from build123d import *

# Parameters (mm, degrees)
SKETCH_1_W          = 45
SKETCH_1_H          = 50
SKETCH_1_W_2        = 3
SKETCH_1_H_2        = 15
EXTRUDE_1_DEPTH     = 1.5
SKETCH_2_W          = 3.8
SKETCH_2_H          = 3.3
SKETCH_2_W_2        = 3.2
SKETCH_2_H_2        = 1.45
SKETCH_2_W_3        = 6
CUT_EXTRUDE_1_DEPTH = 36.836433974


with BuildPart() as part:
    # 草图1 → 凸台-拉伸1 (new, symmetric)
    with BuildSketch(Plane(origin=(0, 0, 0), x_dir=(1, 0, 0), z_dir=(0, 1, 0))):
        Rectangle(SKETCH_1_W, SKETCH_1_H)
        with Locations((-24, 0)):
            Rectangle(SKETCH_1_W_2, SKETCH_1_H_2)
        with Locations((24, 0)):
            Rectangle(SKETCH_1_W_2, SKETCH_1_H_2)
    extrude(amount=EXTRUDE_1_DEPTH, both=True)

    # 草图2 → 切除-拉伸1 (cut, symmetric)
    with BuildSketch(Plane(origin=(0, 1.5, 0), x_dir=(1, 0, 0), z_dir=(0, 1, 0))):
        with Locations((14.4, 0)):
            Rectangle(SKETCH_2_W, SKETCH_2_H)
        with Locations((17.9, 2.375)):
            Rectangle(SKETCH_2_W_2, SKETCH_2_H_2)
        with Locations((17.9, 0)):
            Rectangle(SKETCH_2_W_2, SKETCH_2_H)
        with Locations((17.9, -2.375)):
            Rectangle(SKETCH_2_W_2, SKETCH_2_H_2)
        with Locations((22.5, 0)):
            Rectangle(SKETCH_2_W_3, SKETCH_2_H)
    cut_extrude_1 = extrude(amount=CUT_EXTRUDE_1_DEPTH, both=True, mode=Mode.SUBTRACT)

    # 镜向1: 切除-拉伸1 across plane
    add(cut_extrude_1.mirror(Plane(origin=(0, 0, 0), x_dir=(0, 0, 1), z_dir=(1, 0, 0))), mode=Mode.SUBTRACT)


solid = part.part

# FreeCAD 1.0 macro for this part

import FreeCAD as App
import Part
import Sketcher

V = App.Vector

doc = App.newDocument("Part")
body = doc.addObject("PartDesign::Body", "Body")

sketch1 = body.newObject("Sketcher::SketchObject", "Sketch")
sketch1.AttachmentSupport = (doc.getObject("XZ_Plane"), [""])
sketch1.MapMode = "FlatFace"
sketch1.addGeometry(Part.LineSegment(V(-22.5, 7.5, 0), V(-22.5, 25, 0)), False)
sketch1.addGeometry(Part.LineSegment(V(-22.5, 25, 0), V(22.5, 25, 0)), False)
sketch1.addGeometry(Part.LineSegment(V(22.5, 25, 0), V(22.5, 7.5, 0)), False)
sketch1.addGeometry(Part.LineSegment(V(22.5, 7.5, 0), V(25.5, 7.5, 0)), False)
sketch1.addGeometry(Part.LineSegment(V(25.5, 7.5, 0), V(25.5, -7.5, 0)), False)
sketch1.addGeometry(Part.LineSegment(V(25.5, -7.5, 0), V(22.5, -7.5, 0)), False)
sketch1.addGeometry(Part.LineSegment(V(22.5, -7.5, 0), V(22.5, -25, 0)), False)
sketch1.addGeometry(Part.LineSegment(V(22.5, -25, 0), V(-22.5, -25, 0)), False)
sketch1.addGeometry(Part.LineSegment(V(-22.5, -25, 0), V(-22.5, -7.5, 0)), False)
sketch1.addGeometry(Part.LineSegment(V(-22.5, -7.5, 0), V(-25.5, -7.5, 0)), False)
sketch1.addGeometry(Part.LineSegment(V(-25.5, -7.5, 0), V(-25.5, 7.5, 0)), False)
sketch1.addGeometry(Part.LineSegment(V(-25.5, 7.5, 0), V(-22.5, 7.5, 0)), False)
sketch1.addConstraint(Sketcher.Constraint("Coincident", 0, 2, 1, 1))
sketch1.addConstraint(Sketcher.Constraint("Coincident", 1, 2, 2, 1))
sketch1.addConstraint(Sketcher.Constraint("Coincident", 2, 2, 3, 1))
sketch1.addConstraint(Sketcher.Constraint("Coincident", 3, 2, 4, 1))
sketch1.addConstraint(Sketcher.Constraint("Coincident", 4, 2, 5, 1))
sketch1.addConstraint(Sketcher.Constraint("Coincident", 5, 2, 6, 1))
sketch1.addConstraint(Sketcher.Constraint("Coincident", 6, 2, 7, 1))
sketch1.addConstraint(Sketcher.Constraint("Coincident", 7, 2, 8, 1))
sketch1.addConstraint(Sketcher.Constraint("Coincident", 8, 2, 9, 1))
sketch1.addConstraint(Sketcher.Constraint("Coincident", 9, 2, 10, 1))
sketch1.addConstraint(Sketcher.Constraint("Coincident", 10, 2, 11, 1))
sketch1.addConstraint(Sketcher.Constraint("Coincident", 11, 2, 0, 1))
sketch1.addConstraint(Sketcher.Constraint("Vertical", 0))
sketch1.addConstraint(Sketcher.Constraint("Horizontal", 1))
sketch1.addConstraint(Sketcher.Constraint("Vertical", 2))
sketch1.addConstraint(Sketcher.Constraint("Horizontal", 3))
sketch1.addConstraint(Sketcher.Constraint("Vertical", 4))
sketch1.addConstraint(Sketcher.Constraint("Horizontal", 5))
sketch1.addConstraint(Sketcher.Constraint("Vertical", 6))
sketch1.addConstraint(Sketcher.Constraint("Horizontal", 7))
sketch1.addConstraint(Sketcher.Constraint("Vertical", 8))
sketch1.addConstraint(Sketcher.Constraint("Horizontal", 9))
sketch1.addConstraint(Sketcher.Constraint("Vertical", 10))
sketch1.addConstraint(Sketcher.Constraint("Horizontal", 11))
sketch1.addConstraint(Sketcher.Constraint("Symmetric", 0, 2, 6, 2, -1, 1))
sketch1.addConstraint(Sketcher.Constraint("Symmetric", 2, 2, 8, 2, -1, 1))
sketch1.addConstraint(Sketcher.Constraint("Symmetric", 4, 2, 10, 2, -1, 1))
sketch1.addConstraint(Sketcher.Constraint("Symmetric", 5, 2, 8, 2, -2))
sketch1.addConstraint(Sketcher.Constraint("DistanceX", 1, 1, 1, 2, 45.0))
sketch1.addConstraint(Sketcher.Constraint("DistanceX", 3, 1, 3, 2, 3.0))
sketch1.addConstraint(Sketcher.Constraint("DistanceY", 4, 2, 4, 1, 15.0))
sketch1.addConstraint(Sketcher.Constraint("DistanceY", 0, 1, 0, 2, 17.5))
pad1 = body.newObject("PartDesign::Pad", "Pad")
pad1.Profile = sketch1
pad1.Length = 3
pad1.Midplane = True

sketch2 = body.newObject("Sketcher::SketchObject", "Sketch001")
sketch2.AttachmentSupport = (doc.getObject("XZ_Plane"), [""])
sketch2.MapMode = "FlatFace"
sketch2.AttachmentOffset = App.Placement(V(0, 0, -1.5), App.Rotation())
sketch2.addGeometry(Part.LineSegment(V(12.5, -1.6, 0), V(12.5, 1.6, 0)), False)
sketch2.addGeometry(Part.LineSegment(V(12.5, 1.6, 0), V(16.3, 1.6, 0)), False)
sketch2.addGeometry(Part.LineSegment(V(16.3, 1.6, 0), V(16.3, 3.1, 0)), False)
sketch2.addGeometry(Part.LineSegment(V(16.3, 3.1, 0), V(19.5, 3.1, 0)), False)
sketch2.addGeometry(Part.LineSegment(V(19.5, 3.1, 0), V(19.5, 1.6, 0)), False)
sketch2.addGeometry(Part.LineSegment(V(19.5, 1.6, 0), V(25.5, 1.6, 0)), False)
sketch2.addGeometry(Part.LineSegment(V(25.5, 1.6, 0), V(25.5, -1.6, 0)), False)
sketch2.addGeometry(Part.LineSegment(V(25.5, -1.6, 0), V(19.5, -1.6, 0)), False)
sketch2.addGeometry(Part.LineSegment(V(19.5, -1.6, 0), V(19.5, -3.1, 0)), False)
sketch2.addGeometry(Part.LineSegment(V(19.5, -3.1, 0), V(16.3, -3.1, 0)), False)
sketch2.addGeometry(Part.LineSegment(V(16.3, -3.1, 0), V(16.3, -1.6, 0)), False)
sketch2.addGeometry(Part.LineSegment(V(16.3, -1.6, 0), V(12.5, -1.6, 0)), False)
sketch2.addConstraint(Sketcher.Constraint("Coincident", 0, 2, 1, 1))
sketch2.addConstraint(Sketcher.Constraint("Coincident", 1, 2, 2, 1))
sketch2.addConstraint(Sketcher.Constraint("Coincident", 2, 2, 3, 1))
sketch2.addConstraint(Sketcher.Constraint("Coincident", 3, 2, 4, 1))
sketch2.addConstraint(Sketcher.Constraint("Coincident", 4, 2, 5, 1))
sketch2.addConstraint(Sketcher.Constraint("Coincident", 5, 2, 6, 1))
sketch2.addConstraint(Sketcher.Constraint("Coincident", 6, 2, 7, 1))
sketch2.addConstraint(Sketcher.Constraint("Coincident", 7, 2, 8, 1))
sketch2.addConstraint(Sketcher.Constraint("Coincident", 8, 2, 9, 1))
sketch2.addConstraint(Sketcher.Constraint("Coincident", 9, 2, 10, 1))
sketch2.addConstraint(Sketcher.Constraint("Coincident", 10, 2, 11, 1))
sketch2.addConstraint(Sketcher.Constraint("Coincident", 11, 2, 0, 1))
sketch2.addConstraint(Sketcher.Constraint("Vertical", 0))
sketch2.addConstraint(Sketcher.Constraint("Horizontal", 1))
sketch2.addConstraint(Sketcher.Constraint("Vertical", 2))
sketch2.addConstraint(Sketcher.Constraint("Horizontal", 3))
sketch2.addConstraint(Sketcher.Constraint("Vertical", 4))
sketch2.addConstraint(Sketcher.Constraint("Horizontal", 5))
sketch2.addConstraint(Sketcher.Constraint("Vertical", 6))
sketch2.addConstraint(Sketcher.Constraint("Horizontal", 7))
sketch2.addConstraint(Sketcher.Constraint("Vertical", 8))
sketch2.addConstraint(Sketcher.Constraint("Horizontal", 9))
sketch2.addConstraint(Sketcher.Constraint("Vertical", 10))
sketch2.addConstraint(Sketcher.Constraint("Horizontal", 11))
sketch2.addConstraint(Sketcher.Constraint("Symmetric", 4, 2, 7, 2, -1))
sketch2.addConstraint(Sketcher.Constraint("Symmetric", 2, 2, 9, 2, -1))
sketch2.addConstraint(Sketcher.Constraint("Horizontal", 1, 2, 4, 2))
sketch2.addConstraint(Sketcher.Constraint("Horizontal", 7, 2, 10, 2))
sketch2.addConstraint(Sketcher.Constraint("DistanceX", 5, 1, 5, 2, 6.0))
sketch2.addConstraint(Sketcher.Constraint("DistanceX", 1, 1, 1, 2, 3.8))
sketch2.addConstraint(Sketcher.Constraint("DistanceX", 3, 1, 3, 2, 3.2))
sketch2.addConstraint(Sketcher.Constraint("DistanceY", 0, 1, 0, 2, 3.3))
sketch2.addConstraint(Sketcher.Constraint("DistanceY", 2, 1, 2, 2, 1.45))
sketch2.addConstraint(Sketcher.Constraint("DistanceX", -1, 1, 0, 2, 12.5))
pocket1 = body.newObject("PartDesign::Pocket", "Pocket")
pocket1.Profile = sketch2
pocket1.Length = 73.672868
pocket1.Midplane = True
doc.recompute()

mirrored = body.newObject("PartDesign::Mirrored", "Mirrored")
mirrored.Originals = [pocket1]
mirrored.MirrorPlane = (doc.getObject("YZ_Plane"), [""])
body.Tip = mirrored

doc.recompute()
